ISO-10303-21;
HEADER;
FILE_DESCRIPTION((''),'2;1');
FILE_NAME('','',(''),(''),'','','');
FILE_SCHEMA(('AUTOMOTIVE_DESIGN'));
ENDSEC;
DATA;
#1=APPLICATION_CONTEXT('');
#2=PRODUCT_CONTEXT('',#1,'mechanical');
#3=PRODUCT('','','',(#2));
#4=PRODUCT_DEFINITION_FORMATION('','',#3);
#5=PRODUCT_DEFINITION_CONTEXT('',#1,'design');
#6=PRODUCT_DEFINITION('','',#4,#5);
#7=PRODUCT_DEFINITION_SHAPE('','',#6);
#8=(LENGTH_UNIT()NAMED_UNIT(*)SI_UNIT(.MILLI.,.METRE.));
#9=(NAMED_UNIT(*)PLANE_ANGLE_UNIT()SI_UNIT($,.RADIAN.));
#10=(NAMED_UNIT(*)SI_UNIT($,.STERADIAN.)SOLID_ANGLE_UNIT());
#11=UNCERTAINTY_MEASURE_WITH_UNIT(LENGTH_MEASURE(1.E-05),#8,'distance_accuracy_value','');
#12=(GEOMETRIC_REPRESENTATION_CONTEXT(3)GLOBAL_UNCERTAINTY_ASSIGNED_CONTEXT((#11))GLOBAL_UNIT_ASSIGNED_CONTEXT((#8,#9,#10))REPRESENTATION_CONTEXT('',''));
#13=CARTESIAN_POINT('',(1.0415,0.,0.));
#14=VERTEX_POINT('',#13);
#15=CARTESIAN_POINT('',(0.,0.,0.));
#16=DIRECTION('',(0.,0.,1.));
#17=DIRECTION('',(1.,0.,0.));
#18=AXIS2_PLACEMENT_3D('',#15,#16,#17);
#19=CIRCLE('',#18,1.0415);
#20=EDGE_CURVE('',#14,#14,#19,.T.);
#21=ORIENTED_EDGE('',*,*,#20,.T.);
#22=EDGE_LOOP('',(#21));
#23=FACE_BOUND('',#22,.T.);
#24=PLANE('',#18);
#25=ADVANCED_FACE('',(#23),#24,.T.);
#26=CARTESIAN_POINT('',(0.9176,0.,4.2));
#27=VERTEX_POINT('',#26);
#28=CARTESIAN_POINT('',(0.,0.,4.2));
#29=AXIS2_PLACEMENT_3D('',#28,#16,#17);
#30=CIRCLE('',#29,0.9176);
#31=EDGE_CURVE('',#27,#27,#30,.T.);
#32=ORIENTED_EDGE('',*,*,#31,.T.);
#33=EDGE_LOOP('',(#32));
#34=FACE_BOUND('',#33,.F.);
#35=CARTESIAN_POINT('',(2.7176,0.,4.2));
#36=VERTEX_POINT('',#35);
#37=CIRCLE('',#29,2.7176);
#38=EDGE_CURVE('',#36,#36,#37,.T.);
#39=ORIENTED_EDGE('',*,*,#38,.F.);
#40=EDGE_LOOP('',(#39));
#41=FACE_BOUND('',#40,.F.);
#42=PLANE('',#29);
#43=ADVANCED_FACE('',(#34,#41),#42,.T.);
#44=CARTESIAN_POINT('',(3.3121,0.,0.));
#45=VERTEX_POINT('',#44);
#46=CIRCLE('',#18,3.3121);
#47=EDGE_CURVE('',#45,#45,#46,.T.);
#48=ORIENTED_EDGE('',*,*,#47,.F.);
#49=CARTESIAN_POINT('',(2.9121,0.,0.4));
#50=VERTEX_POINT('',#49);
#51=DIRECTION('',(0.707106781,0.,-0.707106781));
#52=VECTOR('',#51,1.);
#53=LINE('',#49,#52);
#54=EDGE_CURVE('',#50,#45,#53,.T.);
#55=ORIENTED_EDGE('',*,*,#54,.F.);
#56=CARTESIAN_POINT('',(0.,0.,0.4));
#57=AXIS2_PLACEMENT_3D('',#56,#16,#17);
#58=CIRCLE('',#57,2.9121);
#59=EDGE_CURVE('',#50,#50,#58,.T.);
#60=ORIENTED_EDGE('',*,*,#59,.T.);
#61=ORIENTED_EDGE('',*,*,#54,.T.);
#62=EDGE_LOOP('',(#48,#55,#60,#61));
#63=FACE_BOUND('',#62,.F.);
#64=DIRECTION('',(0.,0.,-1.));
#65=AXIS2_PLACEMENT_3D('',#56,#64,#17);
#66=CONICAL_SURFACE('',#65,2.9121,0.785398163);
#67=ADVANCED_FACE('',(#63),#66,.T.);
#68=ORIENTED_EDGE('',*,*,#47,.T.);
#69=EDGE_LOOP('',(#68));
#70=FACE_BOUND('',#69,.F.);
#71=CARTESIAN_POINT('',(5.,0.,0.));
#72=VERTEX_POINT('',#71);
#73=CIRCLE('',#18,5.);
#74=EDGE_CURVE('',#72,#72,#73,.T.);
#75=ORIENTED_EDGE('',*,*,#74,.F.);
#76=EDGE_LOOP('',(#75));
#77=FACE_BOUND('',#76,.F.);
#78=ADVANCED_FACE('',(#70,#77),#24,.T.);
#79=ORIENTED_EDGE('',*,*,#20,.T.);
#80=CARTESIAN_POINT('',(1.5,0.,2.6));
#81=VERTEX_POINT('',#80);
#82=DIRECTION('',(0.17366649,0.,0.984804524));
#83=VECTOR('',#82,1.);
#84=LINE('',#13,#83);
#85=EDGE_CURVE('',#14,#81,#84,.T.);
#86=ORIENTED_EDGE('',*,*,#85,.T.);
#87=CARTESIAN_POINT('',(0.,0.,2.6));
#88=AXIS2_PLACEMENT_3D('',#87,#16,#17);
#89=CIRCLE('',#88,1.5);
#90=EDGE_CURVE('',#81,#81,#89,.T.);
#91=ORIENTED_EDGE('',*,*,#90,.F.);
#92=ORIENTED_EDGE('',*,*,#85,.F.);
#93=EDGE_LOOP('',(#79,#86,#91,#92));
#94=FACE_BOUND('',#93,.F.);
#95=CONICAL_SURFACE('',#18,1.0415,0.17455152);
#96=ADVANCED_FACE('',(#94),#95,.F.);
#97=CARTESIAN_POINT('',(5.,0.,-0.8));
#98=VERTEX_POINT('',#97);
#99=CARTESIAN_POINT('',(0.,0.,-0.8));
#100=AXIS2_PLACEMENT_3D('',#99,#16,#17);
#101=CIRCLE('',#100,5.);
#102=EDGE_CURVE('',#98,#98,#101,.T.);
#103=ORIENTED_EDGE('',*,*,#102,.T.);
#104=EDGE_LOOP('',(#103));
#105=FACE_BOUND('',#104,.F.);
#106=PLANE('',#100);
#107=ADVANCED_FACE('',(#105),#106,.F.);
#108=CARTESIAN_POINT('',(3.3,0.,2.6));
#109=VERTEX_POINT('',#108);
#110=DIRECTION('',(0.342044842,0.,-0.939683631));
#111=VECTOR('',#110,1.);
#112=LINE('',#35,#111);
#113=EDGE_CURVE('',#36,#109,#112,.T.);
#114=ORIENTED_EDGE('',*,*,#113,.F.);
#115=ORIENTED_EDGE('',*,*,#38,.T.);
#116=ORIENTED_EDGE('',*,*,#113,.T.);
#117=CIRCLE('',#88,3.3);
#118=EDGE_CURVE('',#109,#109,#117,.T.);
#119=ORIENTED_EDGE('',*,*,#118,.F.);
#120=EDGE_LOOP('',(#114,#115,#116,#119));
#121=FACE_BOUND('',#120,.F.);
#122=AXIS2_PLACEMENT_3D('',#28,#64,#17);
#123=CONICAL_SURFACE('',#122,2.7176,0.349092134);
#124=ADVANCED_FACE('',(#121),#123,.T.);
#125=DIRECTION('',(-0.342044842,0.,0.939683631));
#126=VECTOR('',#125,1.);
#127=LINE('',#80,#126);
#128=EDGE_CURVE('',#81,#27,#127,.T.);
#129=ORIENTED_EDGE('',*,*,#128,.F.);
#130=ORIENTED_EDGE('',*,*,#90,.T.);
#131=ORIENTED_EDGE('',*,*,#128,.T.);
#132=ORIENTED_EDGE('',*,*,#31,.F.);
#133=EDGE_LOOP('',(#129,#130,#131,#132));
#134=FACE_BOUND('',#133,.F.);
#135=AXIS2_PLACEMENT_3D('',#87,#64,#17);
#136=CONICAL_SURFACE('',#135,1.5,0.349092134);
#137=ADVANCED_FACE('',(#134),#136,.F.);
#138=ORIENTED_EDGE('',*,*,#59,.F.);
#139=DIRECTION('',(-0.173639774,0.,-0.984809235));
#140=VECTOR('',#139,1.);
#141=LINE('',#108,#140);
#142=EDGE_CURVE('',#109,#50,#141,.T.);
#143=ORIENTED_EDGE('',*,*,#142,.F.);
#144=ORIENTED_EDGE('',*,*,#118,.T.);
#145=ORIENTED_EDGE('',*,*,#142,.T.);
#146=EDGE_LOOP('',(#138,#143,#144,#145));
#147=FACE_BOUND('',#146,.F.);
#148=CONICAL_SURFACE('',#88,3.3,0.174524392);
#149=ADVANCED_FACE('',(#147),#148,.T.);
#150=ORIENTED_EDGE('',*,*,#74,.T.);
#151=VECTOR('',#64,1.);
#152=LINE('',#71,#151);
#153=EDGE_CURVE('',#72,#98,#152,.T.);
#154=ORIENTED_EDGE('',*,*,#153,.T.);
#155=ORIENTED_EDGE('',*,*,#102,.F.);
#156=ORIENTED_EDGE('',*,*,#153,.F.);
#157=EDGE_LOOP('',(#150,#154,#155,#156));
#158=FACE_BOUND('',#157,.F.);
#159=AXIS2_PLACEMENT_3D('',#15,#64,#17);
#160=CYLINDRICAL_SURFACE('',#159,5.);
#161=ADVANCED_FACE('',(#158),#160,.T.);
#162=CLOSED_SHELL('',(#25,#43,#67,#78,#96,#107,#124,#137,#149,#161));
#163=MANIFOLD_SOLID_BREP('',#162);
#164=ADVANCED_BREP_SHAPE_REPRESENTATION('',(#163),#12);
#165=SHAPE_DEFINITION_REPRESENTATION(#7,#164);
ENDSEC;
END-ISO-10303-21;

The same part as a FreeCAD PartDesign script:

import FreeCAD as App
import Part
import Sketcher

V = App.Vector
Q = App.Units.Quantity


def add_polygon(sketch, points):
    """Adds a closed chain of lines whose ends are joined by coincident constraints."""
    first, n = sketch.GeometryCount, len(points)
    for a, b in zip(points, points[1:] + points[:1]):
        sketch.addGeometry(Part.LineSegment(App.Vector(*a, 0), App.Vector(*b, 0)), False)
    for i in range(n):
        sketch.addConstraint(Sketcher.Constraint("Coincident", first + i, 2, first + (i + 1) % n, 1))

doc = App.newDocument("Part")
body = doc.addObject("PartDesign::Body", "Body")

sketch1 = body.newObject("Sketcher::SketchObject", "Sketch")
sketch1.AttachmentSupport = (doc.getObject("XZ_Plane"), [""])
sketch1.MapMode = "FlatFace"
add_polygon(sketch1, [(0, 0), (1, 0), (1.5, 2.6), (0.9, 4.2), (2.7, 4.2), (3.3, 2.6), (2.9, 0.4), (3.3, 0), (5, 0), (5, -0.8), (0, -0.8)])
sketch1.addConstraint(Sketcher.Constraint("Horizontal", 0))
sketch1.addConstraint(Sketcher.Constraint("Horizontal", 3))
sketch1.addConstraint(Sketcher.Constraint("Horizontal", 7))
sketch1.addConstraint(Sketcher.Constraint("Vertical", 8))
sketch1.addConstraint(Sketcher.Constraint("Horizontal", 9))
sketch1.addConstraint(Sketcher.Constraint("Vertical", 10))
sketch1.addConstraint(Sketcher.Constraint("Coincident", 10, 2, -1, 1))
sketch1.addConstraint(Sketcher.Constraint("PointOnObject", 6, 2, -1))
sketch1.addConstraint(Sketcher.Constraint("Parallel", 2, 4))
sketch1.addConstraint(Sketcher.Constraint("Parallel", 1, 5))
sketch1.addConstraint(Sketcher.Constraint("Horizontal", 1, 2, 4, 2))
sketch1.addConstraint(Sketcher.Constraint("Angle", 6, Q("-45 deg")))
sketch1.addConstraint(Sketcher.Constraint("DistanceX", 3, 1, 3, 2, 1.8))
sketch1.addConstraint(Sketcher.Constraint("DistanceY", 8, 2, 8, 1, 0.8))
sketch1.addConstraint(Sketcher.Constraint("DistanceY", -1, 1, 1, 2, 2.6))
sketch1.addConstraint(Sketcher.Constraint("DistanceY", -1, 1, 5, 2, 0.4))
sketch1.addConstraint(Sketcher.Constraint("DistanceY", 1, 2, 2, 2, 1.6))
sketch1.addConstraint(Sketcher.Constraint("DistanceX", 9, 2, 9, 1, 5.0))
sketch1.addConstraint(Sketcher.Constraint("Angle", 1, Q("79.999 deg")))
sketch1.addConstraint(Sketcher.Constraint("DistanceX", -1, 1, 1, 2, 1.5))
sketch1.addConstraint(Sketcher.Constraint("DistanceX", 2, 2, 0, 2, 0.124))
revolution = body.newObject("PartDesign::Revolution", "Revolution")
revolution.Profile = sketch1
revolution.ReferenceAxis = (sketch1, ["V_Axis"])
revolution.Angle = 360

doc.recompute()
